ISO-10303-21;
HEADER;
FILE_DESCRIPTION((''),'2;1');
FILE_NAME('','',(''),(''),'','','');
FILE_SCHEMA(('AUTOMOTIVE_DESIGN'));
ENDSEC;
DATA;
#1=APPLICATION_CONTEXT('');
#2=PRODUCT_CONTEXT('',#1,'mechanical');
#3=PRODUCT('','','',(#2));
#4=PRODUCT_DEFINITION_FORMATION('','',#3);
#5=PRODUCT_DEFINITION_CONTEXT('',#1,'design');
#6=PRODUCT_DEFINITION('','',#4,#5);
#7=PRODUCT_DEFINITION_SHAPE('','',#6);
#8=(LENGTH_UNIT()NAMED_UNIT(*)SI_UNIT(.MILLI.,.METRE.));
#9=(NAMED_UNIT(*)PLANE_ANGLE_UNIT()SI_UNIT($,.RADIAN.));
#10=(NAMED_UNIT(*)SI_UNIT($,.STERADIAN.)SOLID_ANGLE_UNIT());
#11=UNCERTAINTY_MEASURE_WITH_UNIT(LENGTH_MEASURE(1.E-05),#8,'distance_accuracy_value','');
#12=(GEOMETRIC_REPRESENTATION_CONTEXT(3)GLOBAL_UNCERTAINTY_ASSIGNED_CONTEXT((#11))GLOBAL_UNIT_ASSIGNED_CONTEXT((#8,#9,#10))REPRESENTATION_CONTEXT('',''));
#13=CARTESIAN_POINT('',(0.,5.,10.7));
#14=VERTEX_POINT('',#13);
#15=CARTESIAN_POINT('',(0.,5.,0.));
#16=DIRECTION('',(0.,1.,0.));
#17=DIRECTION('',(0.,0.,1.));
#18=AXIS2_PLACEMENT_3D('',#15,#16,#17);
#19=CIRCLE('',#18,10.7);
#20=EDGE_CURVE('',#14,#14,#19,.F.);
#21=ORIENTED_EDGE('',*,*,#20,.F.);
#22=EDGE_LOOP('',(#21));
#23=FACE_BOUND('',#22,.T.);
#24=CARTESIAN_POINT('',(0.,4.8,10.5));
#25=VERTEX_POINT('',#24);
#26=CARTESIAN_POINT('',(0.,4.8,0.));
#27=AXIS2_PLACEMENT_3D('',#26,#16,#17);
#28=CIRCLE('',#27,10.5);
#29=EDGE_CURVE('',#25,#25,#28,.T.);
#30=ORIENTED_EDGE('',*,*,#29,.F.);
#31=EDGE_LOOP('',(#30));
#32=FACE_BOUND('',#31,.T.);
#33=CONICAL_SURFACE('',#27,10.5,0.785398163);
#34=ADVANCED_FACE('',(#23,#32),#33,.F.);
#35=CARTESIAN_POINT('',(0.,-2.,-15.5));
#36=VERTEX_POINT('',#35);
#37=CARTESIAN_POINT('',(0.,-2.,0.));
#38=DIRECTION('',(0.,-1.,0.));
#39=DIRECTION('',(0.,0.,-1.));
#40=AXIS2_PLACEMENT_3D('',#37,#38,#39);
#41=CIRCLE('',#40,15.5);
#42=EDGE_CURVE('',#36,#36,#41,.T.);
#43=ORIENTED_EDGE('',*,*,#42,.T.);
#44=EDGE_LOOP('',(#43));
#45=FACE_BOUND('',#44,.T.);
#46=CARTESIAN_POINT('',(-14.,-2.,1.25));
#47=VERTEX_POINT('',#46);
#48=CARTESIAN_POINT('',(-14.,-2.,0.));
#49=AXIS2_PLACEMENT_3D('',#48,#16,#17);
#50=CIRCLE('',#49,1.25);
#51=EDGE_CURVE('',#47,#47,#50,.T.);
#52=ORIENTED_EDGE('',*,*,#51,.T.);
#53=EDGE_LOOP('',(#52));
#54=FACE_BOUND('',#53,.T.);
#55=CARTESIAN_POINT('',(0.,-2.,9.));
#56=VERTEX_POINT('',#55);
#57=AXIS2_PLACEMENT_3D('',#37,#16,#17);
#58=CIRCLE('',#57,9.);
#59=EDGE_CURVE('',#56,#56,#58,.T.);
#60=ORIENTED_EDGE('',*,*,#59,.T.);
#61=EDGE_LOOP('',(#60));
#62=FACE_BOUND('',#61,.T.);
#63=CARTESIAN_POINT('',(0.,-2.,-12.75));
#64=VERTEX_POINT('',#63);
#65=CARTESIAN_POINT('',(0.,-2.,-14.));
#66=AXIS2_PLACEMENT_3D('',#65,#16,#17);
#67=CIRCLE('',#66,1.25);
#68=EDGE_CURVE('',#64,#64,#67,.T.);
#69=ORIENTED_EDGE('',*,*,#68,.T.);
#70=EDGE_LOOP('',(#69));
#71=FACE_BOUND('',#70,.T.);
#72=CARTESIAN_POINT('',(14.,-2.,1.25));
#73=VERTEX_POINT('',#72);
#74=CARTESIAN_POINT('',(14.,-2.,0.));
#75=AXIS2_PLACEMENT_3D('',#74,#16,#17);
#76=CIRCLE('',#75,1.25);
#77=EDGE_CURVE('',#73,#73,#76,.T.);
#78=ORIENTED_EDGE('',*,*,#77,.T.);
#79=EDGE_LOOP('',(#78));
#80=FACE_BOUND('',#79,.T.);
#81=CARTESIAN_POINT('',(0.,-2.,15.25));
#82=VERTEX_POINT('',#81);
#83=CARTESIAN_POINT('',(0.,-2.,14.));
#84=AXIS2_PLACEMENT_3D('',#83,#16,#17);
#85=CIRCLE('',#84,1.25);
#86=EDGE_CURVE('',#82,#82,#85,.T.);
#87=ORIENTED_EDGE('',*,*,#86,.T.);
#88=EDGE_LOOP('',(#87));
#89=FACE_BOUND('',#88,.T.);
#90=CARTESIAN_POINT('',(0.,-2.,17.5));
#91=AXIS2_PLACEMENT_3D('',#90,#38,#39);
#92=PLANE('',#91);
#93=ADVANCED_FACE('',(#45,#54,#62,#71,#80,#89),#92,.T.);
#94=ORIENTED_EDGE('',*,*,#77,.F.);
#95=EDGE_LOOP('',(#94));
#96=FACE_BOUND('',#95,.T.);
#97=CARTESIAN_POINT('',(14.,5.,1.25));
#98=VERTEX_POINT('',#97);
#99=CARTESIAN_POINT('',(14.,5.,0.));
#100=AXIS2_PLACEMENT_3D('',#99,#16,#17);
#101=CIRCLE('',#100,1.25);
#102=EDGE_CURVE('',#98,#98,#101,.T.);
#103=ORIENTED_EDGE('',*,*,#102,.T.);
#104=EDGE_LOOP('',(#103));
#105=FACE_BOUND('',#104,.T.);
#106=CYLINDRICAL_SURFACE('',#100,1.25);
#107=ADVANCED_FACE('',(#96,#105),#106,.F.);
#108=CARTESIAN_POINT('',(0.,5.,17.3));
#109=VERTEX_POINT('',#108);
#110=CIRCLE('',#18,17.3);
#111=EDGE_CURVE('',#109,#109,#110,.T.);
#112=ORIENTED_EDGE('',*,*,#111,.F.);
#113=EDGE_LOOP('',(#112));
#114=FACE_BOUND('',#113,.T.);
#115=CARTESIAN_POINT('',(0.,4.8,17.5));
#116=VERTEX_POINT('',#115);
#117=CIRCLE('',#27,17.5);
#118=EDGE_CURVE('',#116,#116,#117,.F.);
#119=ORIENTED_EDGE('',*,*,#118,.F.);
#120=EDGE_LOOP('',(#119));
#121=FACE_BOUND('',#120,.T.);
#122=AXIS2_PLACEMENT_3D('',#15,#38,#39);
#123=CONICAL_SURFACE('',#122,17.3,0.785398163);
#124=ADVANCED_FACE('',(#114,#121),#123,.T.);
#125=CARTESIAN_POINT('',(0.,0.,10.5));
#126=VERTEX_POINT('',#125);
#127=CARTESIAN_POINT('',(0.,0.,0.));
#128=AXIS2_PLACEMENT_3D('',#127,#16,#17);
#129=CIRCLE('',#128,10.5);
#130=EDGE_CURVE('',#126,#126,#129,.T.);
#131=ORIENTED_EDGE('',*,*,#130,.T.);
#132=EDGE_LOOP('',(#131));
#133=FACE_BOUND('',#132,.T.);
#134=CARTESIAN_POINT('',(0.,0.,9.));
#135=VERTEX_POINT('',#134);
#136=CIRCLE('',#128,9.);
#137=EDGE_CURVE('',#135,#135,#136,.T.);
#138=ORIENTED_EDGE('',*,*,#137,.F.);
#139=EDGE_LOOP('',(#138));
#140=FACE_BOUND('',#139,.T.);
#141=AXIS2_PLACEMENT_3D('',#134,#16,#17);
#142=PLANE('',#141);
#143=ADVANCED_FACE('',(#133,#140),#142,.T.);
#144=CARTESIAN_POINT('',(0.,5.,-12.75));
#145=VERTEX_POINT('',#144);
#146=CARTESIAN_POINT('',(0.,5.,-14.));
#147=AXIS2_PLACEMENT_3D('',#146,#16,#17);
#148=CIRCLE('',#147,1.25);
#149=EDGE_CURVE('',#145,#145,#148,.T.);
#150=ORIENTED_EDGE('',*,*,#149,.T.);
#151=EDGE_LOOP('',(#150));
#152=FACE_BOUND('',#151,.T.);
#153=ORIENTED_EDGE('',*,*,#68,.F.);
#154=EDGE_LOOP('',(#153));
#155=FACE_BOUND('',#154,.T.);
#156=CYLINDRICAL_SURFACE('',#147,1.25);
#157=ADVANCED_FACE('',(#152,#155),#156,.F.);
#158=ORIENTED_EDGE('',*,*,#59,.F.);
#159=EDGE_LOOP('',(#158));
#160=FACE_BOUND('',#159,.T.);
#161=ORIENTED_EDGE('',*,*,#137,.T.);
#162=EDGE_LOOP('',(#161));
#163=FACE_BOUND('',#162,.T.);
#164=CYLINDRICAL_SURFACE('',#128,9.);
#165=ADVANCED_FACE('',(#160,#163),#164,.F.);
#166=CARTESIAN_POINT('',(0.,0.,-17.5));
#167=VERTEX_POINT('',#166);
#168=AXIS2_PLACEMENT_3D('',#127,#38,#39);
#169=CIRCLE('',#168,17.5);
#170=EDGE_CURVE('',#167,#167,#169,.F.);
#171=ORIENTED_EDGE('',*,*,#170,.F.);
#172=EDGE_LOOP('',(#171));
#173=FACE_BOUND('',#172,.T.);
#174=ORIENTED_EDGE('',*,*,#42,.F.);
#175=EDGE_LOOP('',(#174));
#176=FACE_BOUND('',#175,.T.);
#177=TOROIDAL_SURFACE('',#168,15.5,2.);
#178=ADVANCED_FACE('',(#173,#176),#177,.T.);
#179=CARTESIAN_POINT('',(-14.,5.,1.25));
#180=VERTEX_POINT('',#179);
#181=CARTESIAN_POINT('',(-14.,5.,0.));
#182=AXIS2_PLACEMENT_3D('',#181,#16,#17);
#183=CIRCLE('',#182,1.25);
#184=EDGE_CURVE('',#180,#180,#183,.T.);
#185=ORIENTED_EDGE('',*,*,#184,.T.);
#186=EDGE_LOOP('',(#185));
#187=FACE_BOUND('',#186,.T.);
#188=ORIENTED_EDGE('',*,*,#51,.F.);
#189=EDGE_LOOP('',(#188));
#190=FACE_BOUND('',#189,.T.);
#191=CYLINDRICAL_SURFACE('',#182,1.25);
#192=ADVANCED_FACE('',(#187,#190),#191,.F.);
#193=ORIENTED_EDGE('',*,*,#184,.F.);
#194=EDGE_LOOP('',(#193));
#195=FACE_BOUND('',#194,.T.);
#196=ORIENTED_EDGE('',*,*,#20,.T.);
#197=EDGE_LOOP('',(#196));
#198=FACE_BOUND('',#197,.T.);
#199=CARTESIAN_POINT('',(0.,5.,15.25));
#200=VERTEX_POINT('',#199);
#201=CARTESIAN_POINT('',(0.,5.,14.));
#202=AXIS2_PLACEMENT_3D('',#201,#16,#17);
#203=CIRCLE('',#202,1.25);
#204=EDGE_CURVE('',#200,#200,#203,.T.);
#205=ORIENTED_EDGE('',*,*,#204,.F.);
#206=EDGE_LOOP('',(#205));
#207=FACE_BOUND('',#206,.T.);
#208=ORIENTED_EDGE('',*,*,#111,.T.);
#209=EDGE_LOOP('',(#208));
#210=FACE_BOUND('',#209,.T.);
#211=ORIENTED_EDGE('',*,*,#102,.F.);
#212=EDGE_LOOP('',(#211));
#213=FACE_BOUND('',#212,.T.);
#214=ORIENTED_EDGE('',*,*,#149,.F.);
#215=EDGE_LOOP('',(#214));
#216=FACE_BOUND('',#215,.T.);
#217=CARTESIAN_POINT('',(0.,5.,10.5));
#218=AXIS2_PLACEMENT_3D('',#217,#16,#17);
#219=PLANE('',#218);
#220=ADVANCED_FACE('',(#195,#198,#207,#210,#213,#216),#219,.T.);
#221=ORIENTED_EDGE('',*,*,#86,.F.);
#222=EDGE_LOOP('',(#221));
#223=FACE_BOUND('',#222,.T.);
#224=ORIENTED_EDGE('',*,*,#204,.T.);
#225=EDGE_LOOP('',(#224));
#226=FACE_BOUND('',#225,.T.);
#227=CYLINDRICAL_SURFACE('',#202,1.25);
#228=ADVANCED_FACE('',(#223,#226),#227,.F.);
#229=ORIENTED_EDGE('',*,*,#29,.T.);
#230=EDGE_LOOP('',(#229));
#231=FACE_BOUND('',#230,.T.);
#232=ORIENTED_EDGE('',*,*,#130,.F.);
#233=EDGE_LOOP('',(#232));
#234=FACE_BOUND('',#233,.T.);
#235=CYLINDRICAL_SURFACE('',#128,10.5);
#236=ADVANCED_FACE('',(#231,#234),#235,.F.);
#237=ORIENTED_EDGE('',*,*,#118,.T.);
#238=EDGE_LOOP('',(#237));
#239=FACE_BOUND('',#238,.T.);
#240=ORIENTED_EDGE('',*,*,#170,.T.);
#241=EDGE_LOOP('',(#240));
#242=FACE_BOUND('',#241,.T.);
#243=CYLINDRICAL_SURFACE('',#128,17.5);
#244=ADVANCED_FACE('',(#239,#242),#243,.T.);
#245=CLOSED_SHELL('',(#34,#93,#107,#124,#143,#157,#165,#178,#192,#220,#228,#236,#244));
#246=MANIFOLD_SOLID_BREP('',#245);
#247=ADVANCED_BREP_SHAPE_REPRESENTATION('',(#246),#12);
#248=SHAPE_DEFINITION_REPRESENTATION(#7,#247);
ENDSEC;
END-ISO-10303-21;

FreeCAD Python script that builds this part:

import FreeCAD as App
import Part
import Sketcher

V = App.Vector


def edges_at(feature, points):
    """Names of the edges that pass closest to the given points."""
    edges = feature.Shape.Edges
    near = lambda p: min(range(len(edges)), key=lambda i: edges[i].distToShape(Part.Vertex(*p))[0])
    return sorted({f"Edge{near(p) + 1}" for p in points})


def add_polygon(sketch, points):
    """Adds a closed chain of lines whose ends are joined by coincident constraints."""
    first, n = sketch.GeometryCount, len(points)
    for a, b in zip(points, points[1:] + points[:1]):
        sketch.addGeometry(Part.LineSegment(App.Vector(*a, 0), App.Vector(*b, 0)), False)
    for i in range(n):
        sketch.addConstraint(Sketcher.Constraint("Coincident", first + i, 2, first + (i + 1) % n, 1))

doc = App.newDocument("Part")
params = doc.addObject("Spreadsheet::Sheet", "Params")
for row, (alias, value) in enumerate([
    ("sketch1_width", "2 mm"),
    ("sketch1_width2", "5 mm"),
    ("sketch1_height", "1.5 mm"),
    ("revolution_angle", "360 deg"),
    ("sketch2_diameter", "2.5 mm"),
    ("hole_diameter", "2.5 mm"),
    ("chamfer_size", "0.2 mm"),
    ("fillet_radius", "2 mm"),
], start=1):
    params.set(f"A{row}", alias)
    params.set(f"B{row}", "=" + value)
    params.setAlias(f"B{row}", alias)

body = doc.addObject("PartDesign::Body", "Body")

# Sketch on YZ plane
sketch1 = body.newObject("Sketcher::SketchObject", "Sketch")
sketch1.AttachmentSupport = (doc.getObject("YZ_Plane"), [""])
sketch1.MapMode = "FlatFace"
add_polygon(sketch1, [(-2, 9), (0, 9), (0, 10.5), (5, 10.5), (5, 17.5), (-2, 17.5)])  # lines 0-5
sketch1.addConstraint(Sketcher.Constraint("Horizontal", 0))
sketch1.addConstraint(Sketcher.Constraint("Vertical", 1))
sketch1.addConstraint(Sketcher.Constraint("Horizontal", 2))
sketch1.addConstraint(Sketcher.Constraint("Vertical", 3))
sketch1.addConstraint(Sketcher.Constraint("Horizontal", 4))
sketch1.addConstraint(Sketcher.Constraint("Vertical", 5))
sketch1.addConstraint(Sketcher.Constraint("PointOnObject", 0, 2, -2))
sketch1.addConstraint(Sketcher.Constraint("Equal", 4, 3))
sketch1.addConstraint(Sketcher.Constraint("DistanceX", 0, 1, 0, 2, 2.0))
sketch1.addConstraint(Sketcher.Constraint("DistanceX", 2, 1, 2, 2, 5.0))
sketch1.addConstraint(Sketcher.Constraint("DistanceY", 1, 1, 1, 2, 1.5))
sketch1.addConstraint(Sketcher.Constraint("DistanceY", -1, 1, 0, 2, 9.0))
sketch1.setExpression("Constraints[14]", "Params.sketch1_width")
sketch1.setExpression("Constraints[15]", "Params.sketch1_width2")
sketch1.setExpression("Constraints[16]", "Params.sketch1_height")
revolution = body.newObject("PartDesign::Revolution", "Revolution")
revolution.Profile = sketch1
revolution.ReferenceAxis = (sketch1, ["H_Axis"])
revolution.setExpression("Angle", "Params.revolution_angle")

# Sketch on XZ plane
sketch2 = body.newObject("Sketcher::SketchObject", "Sketch001")
sketch2.AttachmentSupport = (doc.getObject("XZ_Plane"), [""])
sketch2.MapMode = "FlatFace"
sketch2.AttachmentOffset = App.Placement(V(0, 0, -5), App.Rotation())
sketch2.addGeometry(Part.Circle(V(0, -14, 0), V(0, 0, 1), 1.2), False)
sketch2.addConstraint(Sketcher.Constraint("PointOnObject", 0, 3, -2))
sketch2.addConstraint(Sketcher.Constraint("Diameter", 0, 2.5))
sketch2.addConstraint(Sketcher.Constraint("DistanceY", 0, 3, -1, 1, 14.0))
sketch2.setExpression("Constraints[1]", "Params.sketch2_diameter")
doc.recompute()
hole = body.newObject("PartDesign::Hole", "Hole")
hole.Profile = sketch2
hole.ThreadType = "None"
hole.setExpression("Diameter", "Params.hole_diameter")
hole.DepthType = "ThroughAll"
hole.Reversed = True
doc.recompute()

polarpattern = body.newObject("PartDesign::PolarPattern", "PolarPattern")
polarpattern.Originals = [hole]
polarpattern.Axis = (doc.getObject("Y_Axis"), [""])
polarpattern.Angle = 360
polarpattern.Occurrences = 4
body.Tip = polarpattern
doc.recompute()

chamfer = body.newObject("PartDesign::Chamfer", "Chamfer")
chamfer.Base = (polarpattern, edges_at(polarpattern, [(0, 5, -17.5), (0, 5, -10.5)]))
chamfer.setExpression("Size", "Params.chamfer_size")
doc.recompute()

fillet = body.newObject("PartDesign::Fillet", "Fillet")
fillet.Base = (chamfer, edges_at(chamfer, [(0, -2, -17.5)]))
fillet.setExpression("Radius", "Params.fillet_radius")

doc.recompute()
